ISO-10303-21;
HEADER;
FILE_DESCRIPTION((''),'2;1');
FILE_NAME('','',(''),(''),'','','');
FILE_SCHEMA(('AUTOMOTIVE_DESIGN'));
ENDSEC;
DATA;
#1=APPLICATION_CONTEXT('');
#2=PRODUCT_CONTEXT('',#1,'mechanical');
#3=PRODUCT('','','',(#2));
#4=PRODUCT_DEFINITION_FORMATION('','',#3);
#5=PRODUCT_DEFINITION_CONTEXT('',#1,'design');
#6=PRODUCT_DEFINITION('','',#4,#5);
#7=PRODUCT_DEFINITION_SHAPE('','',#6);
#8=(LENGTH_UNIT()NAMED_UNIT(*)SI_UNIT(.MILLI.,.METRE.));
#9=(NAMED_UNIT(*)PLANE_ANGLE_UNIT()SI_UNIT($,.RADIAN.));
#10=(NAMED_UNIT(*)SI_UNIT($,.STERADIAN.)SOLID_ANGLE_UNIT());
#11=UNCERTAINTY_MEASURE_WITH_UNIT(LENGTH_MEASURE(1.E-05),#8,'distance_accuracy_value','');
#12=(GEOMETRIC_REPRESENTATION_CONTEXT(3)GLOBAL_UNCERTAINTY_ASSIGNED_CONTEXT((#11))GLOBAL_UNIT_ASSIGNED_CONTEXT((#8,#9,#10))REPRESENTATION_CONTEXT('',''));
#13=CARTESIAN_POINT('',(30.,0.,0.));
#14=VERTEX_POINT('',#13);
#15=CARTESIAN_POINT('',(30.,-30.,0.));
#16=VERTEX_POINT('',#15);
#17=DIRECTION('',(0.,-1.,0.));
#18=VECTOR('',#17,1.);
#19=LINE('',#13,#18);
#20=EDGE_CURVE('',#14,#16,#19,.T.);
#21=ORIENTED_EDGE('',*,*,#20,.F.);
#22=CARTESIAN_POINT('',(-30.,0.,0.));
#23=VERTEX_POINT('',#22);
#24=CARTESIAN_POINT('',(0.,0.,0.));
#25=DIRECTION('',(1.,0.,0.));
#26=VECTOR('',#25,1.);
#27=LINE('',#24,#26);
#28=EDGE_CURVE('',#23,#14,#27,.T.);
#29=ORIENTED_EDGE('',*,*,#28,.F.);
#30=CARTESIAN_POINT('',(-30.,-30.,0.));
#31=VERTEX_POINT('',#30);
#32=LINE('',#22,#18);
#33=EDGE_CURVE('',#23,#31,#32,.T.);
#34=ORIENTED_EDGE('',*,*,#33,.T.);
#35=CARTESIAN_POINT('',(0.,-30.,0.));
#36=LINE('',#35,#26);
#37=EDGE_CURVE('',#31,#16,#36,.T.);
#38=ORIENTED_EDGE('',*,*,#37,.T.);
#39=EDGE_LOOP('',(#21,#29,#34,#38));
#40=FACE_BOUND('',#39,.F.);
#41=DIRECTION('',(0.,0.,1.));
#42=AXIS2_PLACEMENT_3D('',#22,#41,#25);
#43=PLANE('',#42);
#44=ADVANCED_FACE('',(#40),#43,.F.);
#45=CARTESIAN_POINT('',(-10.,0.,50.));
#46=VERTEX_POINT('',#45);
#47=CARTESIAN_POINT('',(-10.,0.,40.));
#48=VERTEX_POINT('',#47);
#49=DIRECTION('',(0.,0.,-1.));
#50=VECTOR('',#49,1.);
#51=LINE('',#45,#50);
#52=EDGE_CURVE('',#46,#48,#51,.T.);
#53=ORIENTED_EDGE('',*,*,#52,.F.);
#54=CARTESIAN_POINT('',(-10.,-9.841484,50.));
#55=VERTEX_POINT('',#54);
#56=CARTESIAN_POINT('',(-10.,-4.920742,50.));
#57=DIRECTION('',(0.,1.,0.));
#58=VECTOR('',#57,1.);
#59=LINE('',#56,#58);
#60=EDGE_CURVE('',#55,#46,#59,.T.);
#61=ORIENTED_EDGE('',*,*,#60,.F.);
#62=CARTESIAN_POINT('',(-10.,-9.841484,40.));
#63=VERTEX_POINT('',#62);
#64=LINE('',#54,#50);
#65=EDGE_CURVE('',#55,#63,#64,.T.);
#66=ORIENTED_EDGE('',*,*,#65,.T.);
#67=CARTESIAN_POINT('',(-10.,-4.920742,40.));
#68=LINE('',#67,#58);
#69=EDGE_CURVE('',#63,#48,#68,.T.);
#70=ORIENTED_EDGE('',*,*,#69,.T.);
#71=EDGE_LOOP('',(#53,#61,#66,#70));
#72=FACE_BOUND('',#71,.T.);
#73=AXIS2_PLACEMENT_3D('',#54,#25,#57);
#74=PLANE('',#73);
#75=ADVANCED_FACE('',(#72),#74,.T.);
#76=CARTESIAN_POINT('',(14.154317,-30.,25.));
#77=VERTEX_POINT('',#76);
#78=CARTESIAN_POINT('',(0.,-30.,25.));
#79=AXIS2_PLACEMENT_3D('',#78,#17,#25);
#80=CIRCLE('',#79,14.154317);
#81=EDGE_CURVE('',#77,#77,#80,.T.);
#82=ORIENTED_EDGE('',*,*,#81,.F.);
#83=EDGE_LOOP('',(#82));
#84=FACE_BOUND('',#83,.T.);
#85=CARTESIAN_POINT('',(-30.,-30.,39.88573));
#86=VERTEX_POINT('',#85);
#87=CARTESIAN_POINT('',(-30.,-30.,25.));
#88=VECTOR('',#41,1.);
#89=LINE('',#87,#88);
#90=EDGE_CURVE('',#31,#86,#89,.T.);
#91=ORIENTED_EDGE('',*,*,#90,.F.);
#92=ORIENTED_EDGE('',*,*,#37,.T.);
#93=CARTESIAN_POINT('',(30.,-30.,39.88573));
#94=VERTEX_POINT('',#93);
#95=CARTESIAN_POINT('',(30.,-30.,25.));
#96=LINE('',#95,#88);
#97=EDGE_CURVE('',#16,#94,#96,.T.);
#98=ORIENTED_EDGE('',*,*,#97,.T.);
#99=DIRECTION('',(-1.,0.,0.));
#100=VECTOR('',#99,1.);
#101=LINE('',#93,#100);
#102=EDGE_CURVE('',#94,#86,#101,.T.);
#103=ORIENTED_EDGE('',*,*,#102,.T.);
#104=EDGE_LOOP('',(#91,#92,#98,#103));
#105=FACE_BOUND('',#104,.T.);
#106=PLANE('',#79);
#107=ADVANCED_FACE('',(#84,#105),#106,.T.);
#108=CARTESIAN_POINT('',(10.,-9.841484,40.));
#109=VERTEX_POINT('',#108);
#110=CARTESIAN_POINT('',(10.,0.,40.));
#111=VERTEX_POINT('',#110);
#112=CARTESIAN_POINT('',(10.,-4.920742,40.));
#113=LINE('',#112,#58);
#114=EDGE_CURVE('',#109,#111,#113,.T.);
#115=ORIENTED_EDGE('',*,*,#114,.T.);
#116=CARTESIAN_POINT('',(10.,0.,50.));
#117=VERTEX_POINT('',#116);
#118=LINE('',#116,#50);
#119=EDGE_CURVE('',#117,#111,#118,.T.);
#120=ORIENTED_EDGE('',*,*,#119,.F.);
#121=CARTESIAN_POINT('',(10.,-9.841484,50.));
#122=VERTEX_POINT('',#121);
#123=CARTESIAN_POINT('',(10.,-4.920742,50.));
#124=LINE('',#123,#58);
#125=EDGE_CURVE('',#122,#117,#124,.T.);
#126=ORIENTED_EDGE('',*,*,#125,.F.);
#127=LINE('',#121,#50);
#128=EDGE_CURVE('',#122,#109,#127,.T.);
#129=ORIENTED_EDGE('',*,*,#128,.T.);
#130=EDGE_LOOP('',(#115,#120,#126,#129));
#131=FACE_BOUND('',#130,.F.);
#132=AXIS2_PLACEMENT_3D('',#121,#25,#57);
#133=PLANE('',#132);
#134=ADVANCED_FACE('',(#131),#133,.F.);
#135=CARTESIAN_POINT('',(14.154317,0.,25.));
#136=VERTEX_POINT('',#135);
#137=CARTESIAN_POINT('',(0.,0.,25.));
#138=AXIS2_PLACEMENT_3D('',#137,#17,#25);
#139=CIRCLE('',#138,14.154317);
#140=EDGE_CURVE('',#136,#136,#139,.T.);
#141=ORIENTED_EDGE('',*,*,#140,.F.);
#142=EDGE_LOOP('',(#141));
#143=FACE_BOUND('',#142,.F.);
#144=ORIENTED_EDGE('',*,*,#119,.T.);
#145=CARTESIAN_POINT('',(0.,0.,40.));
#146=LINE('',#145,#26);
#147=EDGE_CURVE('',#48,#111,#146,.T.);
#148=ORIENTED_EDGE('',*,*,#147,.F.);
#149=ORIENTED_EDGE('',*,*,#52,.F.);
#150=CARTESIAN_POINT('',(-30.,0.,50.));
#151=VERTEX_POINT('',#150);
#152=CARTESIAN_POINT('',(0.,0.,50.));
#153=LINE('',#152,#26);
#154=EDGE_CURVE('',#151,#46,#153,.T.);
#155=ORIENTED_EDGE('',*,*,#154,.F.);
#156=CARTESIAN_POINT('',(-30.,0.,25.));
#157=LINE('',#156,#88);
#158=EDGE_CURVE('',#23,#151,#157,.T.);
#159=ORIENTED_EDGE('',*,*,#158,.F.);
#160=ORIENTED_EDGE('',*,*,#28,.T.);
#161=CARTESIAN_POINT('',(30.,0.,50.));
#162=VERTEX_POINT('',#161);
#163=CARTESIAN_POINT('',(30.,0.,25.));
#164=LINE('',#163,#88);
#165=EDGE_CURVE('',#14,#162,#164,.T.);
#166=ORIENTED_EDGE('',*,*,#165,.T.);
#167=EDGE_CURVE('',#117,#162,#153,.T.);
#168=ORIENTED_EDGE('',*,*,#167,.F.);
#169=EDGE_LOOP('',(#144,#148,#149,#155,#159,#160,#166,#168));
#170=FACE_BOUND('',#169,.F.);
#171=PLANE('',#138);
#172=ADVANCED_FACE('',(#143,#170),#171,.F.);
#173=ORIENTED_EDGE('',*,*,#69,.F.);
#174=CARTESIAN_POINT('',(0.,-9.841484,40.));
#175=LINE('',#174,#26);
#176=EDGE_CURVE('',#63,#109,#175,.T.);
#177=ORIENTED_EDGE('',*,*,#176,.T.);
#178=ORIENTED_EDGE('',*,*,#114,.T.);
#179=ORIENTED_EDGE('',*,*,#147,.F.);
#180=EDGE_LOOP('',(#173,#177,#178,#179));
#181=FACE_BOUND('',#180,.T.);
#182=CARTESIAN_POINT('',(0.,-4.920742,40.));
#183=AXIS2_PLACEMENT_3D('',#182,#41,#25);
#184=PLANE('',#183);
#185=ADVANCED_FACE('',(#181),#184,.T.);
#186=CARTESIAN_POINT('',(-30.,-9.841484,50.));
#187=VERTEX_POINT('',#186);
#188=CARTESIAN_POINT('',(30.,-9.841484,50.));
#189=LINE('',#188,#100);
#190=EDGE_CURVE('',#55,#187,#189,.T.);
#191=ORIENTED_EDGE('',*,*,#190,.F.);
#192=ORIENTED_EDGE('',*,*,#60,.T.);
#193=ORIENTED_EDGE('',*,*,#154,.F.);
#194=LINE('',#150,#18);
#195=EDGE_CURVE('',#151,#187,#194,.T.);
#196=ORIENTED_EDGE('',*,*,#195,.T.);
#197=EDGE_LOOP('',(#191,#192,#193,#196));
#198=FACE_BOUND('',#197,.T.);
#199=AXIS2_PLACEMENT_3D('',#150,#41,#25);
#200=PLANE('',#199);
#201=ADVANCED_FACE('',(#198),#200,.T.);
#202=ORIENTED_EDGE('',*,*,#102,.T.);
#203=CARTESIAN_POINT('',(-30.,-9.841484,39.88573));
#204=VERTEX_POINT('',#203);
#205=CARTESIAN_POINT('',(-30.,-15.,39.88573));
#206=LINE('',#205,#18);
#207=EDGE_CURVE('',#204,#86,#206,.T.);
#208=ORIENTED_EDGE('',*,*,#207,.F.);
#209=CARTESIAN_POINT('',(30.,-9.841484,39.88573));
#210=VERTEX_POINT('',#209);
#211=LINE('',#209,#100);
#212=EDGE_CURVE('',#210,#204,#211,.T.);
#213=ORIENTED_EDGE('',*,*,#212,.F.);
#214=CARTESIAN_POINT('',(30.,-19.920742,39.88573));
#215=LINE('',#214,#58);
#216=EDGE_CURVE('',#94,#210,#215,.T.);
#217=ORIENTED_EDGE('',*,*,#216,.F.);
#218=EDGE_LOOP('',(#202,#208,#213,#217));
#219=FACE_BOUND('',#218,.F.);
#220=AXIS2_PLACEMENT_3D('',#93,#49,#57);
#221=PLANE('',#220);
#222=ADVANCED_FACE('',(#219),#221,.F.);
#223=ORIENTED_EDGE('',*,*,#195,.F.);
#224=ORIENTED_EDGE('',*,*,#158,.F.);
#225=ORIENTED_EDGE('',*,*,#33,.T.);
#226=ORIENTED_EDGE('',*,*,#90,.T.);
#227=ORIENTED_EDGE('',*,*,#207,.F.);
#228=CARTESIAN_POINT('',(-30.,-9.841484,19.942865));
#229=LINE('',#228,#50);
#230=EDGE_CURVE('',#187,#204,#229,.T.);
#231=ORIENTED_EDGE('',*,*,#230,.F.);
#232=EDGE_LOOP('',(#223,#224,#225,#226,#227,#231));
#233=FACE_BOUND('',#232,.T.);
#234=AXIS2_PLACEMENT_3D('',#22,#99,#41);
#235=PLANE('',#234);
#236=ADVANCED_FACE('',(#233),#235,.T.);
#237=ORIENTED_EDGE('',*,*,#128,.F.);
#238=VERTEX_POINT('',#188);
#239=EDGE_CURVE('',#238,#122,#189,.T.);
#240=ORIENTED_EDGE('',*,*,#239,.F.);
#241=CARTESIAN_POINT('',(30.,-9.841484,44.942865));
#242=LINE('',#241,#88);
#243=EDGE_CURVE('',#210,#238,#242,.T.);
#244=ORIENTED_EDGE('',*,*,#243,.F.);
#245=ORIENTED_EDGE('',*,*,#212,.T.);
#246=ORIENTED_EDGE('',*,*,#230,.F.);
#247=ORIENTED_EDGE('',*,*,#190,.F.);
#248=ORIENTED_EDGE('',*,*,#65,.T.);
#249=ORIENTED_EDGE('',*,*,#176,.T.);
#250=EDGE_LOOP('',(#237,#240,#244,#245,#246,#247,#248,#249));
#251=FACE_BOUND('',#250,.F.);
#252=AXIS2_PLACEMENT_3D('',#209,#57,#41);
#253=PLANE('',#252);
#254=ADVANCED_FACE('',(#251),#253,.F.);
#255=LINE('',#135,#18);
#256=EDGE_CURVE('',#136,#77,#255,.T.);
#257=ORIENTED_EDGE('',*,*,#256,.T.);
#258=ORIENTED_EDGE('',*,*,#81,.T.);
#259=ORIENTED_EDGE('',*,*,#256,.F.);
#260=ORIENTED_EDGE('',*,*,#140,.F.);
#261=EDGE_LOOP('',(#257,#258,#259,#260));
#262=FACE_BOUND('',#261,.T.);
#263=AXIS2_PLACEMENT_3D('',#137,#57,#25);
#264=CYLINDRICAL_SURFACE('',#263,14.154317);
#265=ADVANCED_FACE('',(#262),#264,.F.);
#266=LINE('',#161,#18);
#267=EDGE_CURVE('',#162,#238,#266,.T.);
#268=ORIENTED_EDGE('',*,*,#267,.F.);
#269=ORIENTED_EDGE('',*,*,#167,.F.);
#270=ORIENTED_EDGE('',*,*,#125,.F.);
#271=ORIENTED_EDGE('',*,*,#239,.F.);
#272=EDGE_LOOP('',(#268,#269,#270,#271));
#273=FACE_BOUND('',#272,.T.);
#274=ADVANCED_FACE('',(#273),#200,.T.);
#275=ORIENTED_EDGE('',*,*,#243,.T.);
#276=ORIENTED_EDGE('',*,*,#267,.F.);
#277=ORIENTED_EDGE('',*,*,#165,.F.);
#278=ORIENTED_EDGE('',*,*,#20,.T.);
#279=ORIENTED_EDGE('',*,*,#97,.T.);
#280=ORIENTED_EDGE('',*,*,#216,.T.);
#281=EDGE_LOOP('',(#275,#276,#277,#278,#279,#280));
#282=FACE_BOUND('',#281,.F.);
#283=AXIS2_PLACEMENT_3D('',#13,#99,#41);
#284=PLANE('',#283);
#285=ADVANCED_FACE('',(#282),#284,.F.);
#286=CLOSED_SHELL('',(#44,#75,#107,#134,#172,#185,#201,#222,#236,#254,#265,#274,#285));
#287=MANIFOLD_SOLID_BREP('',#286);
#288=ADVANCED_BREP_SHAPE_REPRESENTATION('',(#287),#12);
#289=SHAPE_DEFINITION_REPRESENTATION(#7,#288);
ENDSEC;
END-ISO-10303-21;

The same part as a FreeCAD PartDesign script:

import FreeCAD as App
import Part
import Sketcher


def add_polygon(sketch, points):
    """Adds a closed chain of lines whose ends are joined by coincident constraints."""
    first, n = sketch.GeometryCount, len(points)
    for a, b in zip(points, points[1:] + points[:1]):
        sketch.addGeometry(Part.LineSegment(App.Vector(*a, 0), App.Vector(*b, 0)), False)
    for i in range(n):
        sketch.addConstraint(Sketcher.Constraint("Coincident", first + i, 2, first + (i + 1) % n, 1))

doc = App.newDocument("Part")
body = doc.addObject("PartDesign::Body", "Body")

sketch1 = body.newObject("Sketcher::SketchObject", "Sketch")
sketch1.AttachmentSupport = (doc.getObject("XZ_Plane"), [""])
sketch1.MapMode = "FlatFace"
add_polygon(sketch1, [(-30, 50), (-30, 0), (30, 0), (30, 50)])
sketch1.addGeometry(Part.Circle(App.Vector(0, 25, 0), App.Vector(0, 0, 1), 14), False)
sketch1.addConstraint(Sketcher.Constraint("Vertical", 0))
sketch1.addConstraint(Sketcher.Constraint("Horizontal", 1))
sketch1.addConstraint(Sketcher.Constraint("Vertical", 2))
sketch1.addConstraint(Sketcher.Constraint("Horizontal", 3))
sketch1.addConstraint(Sketcher.Constraint("Symmetric", 0, 2, 1, 2, -1, 1))
sketch1.addConstraint(Sketcher.Constraint("PointOnObject", 4, 3, -2))
sketch1.addConstraint(Sketcher.Constraint("DistanceX", 1, 1, 1, 2, 60.0))
sketch1.addConstraint(Sketcher.Constraint("DistanceY", 0, 2, 0, 1, 50.0))
sketch1.addConstraint(Sketcher.Constraint("DistanceY", -1, 1, 4, 3, 25.0))
sketch1.addConstraint(Sketcher.Constraint("Diameter", 4, 28.308635))
pad1 = body.newObject("PartDesign::Pad", "Pad")
pad1.Profile = sketch1
pad1.Length = 30

sketch2 = body.newObject("Sketcher::SketchObject", "Sketch001")
sketch2.AttachmentSupport = (doc.getObject("YZ_Plane"), [""])
sketch2.MapMode = "FlatFace"
sketch2.AttachmentOffset = App.Placement(App.Vector(0, 0, 30), App.Rotation())
add_polygon(sketch2, [(-30, 50), (-30, 40), (-10, 40), (-10, 50)])
sketch2.addConstraint(Sketcher.Constraint("Vertical", 0))
sketch2.addConstraint(Sketcher.Constraint("Horizontal", 1))
sketch2.addConstraint(Sketcher.Constraint("Vertical", 2))
sketch2.addConstraint(Sketcher.Constraint("Horizontal", 3))
sketch2.addConstraint(Sketcher.Constraint("DistanceX", 0, 2, -1, 1, 30.0))
sketch2.addConstraint(Sketcher.Constraint("DistanceY", -1, 1, 2, 2, 50.0))
sketch2.addConstraint(Sketcher.Constraint("DistanceY", 0, 2, 0, 1, 10.11427))
sketch2.addConstraint(Sketcher.Constraint("DistanceX", 1, 1, 1, 2, 20.158516))
pocket1 = body.newObject("PartDesign::Pocket", "Pocket")
pocket1.Profile = sketch2
pocket1.Length = 95

sketch3 = body.newObject("Sketcher::SketchObject", "Sketch002")
sketch3.AttachmentSupport = (doc.getObject("XY_Plane"), [""])
sketch3.MapMode = "FlatFace"
sketch3.AttachmentOffset = App.Placement(App.Vector(0, 0, 50), App.Rotation())
add_polygon(sketch3, [(-10, 0), (-10, -10), (10, -10), (10, 0)])
sketch3.addConstraint(Sketcher.Constraint("Vertical", 0))
sketch3.addConstraint(Sketcher.Constraint("Horizontal", 1))
sketch3.addConstraint(Sketcher.Constraint("Vertical", 2))
sketch3.addConstraint(Sketcher.Constraint("Horizontal", 3))
sketch3.addConstraint(Sketcher.Constraint("Symmetric", 2, 2, 3, 2, -1, 1))
sketch3.addConstraint(Sketcher.Constraint("DistanceX", 1, 1, 1, 2, 20.0))
sketch3.addConstraint(Sketcher.Constraint("DistanceY", 0, 2, 0, 1, 9.841484))
pocket2 = body.newObject("PartDesign::Pocket", "Pocket001")
pocket2.Profile = sketch3
pocket2.Length = 10

doc.recompute()
